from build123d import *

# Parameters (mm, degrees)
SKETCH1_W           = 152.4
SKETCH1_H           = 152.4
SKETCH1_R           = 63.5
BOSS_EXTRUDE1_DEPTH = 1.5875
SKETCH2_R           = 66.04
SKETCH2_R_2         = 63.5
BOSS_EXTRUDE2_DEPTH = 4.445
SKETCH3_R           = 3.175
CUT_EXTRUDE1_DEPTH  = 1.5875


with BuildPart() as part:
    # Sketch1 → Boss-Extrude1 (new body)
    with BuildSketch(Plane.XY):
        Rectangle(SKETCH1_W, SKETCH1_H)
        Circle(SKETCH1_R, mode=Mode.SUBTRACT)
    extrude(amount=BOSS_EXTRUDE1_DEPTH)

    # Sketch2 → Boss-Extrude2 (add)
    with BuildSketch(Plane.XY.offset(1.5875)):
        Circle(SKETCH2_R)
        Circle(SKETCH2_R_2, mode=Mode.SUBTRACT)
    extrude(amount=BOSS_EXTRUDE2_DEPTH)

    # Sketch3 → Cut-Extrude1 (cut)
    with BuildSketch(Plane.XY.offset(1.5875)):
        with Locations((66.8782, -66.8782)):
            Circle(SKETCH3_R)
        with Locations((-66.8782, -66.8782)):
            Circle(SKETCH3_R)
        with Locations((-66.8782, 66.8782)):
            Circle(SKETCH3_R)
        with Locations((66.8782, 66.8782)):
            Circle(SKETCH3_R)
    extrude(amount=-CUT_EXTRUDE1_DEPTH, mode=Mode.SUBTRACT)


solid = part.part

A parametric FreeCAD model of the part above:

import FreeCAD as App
import Part
import Sketcher
from FreeCAD import Vector
Q = App.Units.Quantity

doc = App.newDocument("Part")
body = doc.addObject("PartDesign::Body", "Body")

# Sketch on XY plane
sketch1 = doc.addObject("Sketcher::SketchObject", "Sketch")
body.addObject(sketch1)
sketch1.AttachmentSupport = (doc.XY_Plane, [""])
sketch1.MapMode = "FlatFace"
sketch1.addGeometry([
    Part.LineSegment(Vector(-76, 76, 0), Vector(-76, -76, 0)),  # 0
    Part.LineSegment(Vector(-76, -76, 0), Vector(76, -76, 0)),  # 1
    Part.LineSegment(Vector(76, -76, 0), Vector(76, 76, 0)),  # 2
    Part.LineSegment(Vector(76, 76, 0), Vector(-76, 76, 0)),  # 3
    Part.Circle(Vector(0, 0, 0), Vector(0, 0, 1), 64),  # 4
], False)
sketch1.addConstraint([
    Sketcher.Constraint("Coincident", 0, 2, 1, 1),
    Sketcher.Constraint("Coincident", 1, 2, 2, 1),
    Sketcher.Constraint("Coincident", 2, 2, 3, 1),
    Sketcher.Constraint("Coincident", 3, 2, 0, 1),
    Sketcher.Constraint("Vertical", 0),
    Sketcher.Constraint("Horizontal", 1),
    Sketcher.Constraint("Vertical", 2),
    Sketcher.Constraint("Horizontal", 3),
    Sketcher.Constraint("Coincident", 4, 3, -1, 1),
    Sketcher.Constraint("Symmetric", 0, 2, 2, 2, -1, 1),
    Sketcher.Constraint("Equal", 3, 0),
    Sketcher.Constraint("Diameter", 4, Q("5 in")),
    Sketcher.Constraint("DistanceX", 1, 1, 1, 2, Q("6 in")),
])
pad1 = doc.addObject("PartDesign::Pad", "Pad")
body.addObject(pad1)
pad1.Profile = sketch1
pad1.Length = Q("0.0625 in")

# Sketch on XY plane
sketch2 = doc.addObject("Sketcher::SketchObject", "Sketch001")
body.addObject(sketch2)
sketch2.AttachmentSupport = (doc.XY_Plane, [""])
sketch2.MapMode = "FlatFace"
sketch2.AttachmentOffset = App.Placement(Vector(0, 0, 0.0625 * 25.4), App.Rotation())
sketch2.addGeometry([
    Part.Circle(Vector(0, 0, 0), Vector(0, 0, 1), 66),
    Part.Circle(Vector(0, 0, 0), Vector(0, 0, 1), 64),
], False)
sketch2.addConstraint([
    Sketcher.Constraint("Coincident", 0, 3, -1, 1),
    Sketcher.Constraint("Coincident", 1, 3, -1, 1),
    Sketcher.Constraint("Diameter", 1, Q("5 in")),
    Sketcher.Constraint("Diameter", 0, Q("5.2 in")),
])
pad2 = doc.addObject("PartDesign::Pad", "Pad001")
body.addObject(pad2)
pad2.Profile = sketch2
pad2.Length = Q("0.175 in")

# Sketch on XY plane
sketch3 = doc.addObject("Sketcher::SketchObject", "Sketch002")
body.addObject(sketch3)
sketch3.AttachmentSupport = (doc.XY_Plane, [""])
sketch3.MapMode = "FlatFace"
sketch3.AttachmentOffset = App.Placement(Vector(0, 0, 0.0625 * 25.4), App.Rotation())
sketch3.addGeometry([
    Part.Circle(Vector(66.9, -66.9, 0), Vector(0, 0, 1), 3.2),
    Part.Circle(Vector(-66.9, -66.9, 0), Vector(0, 0, 1), 3.2),
    Part.Circle(Vector(-66.9, 66.9, 0), Vector(0, 0, 1), 3.2),
    Part.Circle(Vector(66.9, 66.9, 0), Vector(0, 0, 1), 3.2),
], False)
sketch3.addConstraint([
    Sketcher.Constraint("Equal", 0, 1),
    Sketcher.Constraint("Equal", 1, 2),
    Sketcher.Constraint("Equal", 2, 3),
    Sketcher.Constraint("Symmetric", 0, 3, 2, 3, -1, 1),
    Sketcher.Constraint("Symmetric", 1, 3, 3, 3, -1, 1),
    Sketcher.Constraint("Symmetric", 0, 3, 1, 3, -2),
    Sketcher.Constraint("Diameter", 0, Q("0.25 in")),
    Sketcher.Constraint("DistanceX", -1, 1, 0, 3, Q("2.633 in")),
    Sketcher.Constraint("DistanceY", 0, 3, -1, 1, Q("2.633 in")),
])
pocket1 = doc.addObject("PartDesign::Pocket", "Pocket")
body.addObject(pocket1)
pocket1.Profile = sketch3
pocket1.Length = Q("0.0625 in")

doc.recompute()
